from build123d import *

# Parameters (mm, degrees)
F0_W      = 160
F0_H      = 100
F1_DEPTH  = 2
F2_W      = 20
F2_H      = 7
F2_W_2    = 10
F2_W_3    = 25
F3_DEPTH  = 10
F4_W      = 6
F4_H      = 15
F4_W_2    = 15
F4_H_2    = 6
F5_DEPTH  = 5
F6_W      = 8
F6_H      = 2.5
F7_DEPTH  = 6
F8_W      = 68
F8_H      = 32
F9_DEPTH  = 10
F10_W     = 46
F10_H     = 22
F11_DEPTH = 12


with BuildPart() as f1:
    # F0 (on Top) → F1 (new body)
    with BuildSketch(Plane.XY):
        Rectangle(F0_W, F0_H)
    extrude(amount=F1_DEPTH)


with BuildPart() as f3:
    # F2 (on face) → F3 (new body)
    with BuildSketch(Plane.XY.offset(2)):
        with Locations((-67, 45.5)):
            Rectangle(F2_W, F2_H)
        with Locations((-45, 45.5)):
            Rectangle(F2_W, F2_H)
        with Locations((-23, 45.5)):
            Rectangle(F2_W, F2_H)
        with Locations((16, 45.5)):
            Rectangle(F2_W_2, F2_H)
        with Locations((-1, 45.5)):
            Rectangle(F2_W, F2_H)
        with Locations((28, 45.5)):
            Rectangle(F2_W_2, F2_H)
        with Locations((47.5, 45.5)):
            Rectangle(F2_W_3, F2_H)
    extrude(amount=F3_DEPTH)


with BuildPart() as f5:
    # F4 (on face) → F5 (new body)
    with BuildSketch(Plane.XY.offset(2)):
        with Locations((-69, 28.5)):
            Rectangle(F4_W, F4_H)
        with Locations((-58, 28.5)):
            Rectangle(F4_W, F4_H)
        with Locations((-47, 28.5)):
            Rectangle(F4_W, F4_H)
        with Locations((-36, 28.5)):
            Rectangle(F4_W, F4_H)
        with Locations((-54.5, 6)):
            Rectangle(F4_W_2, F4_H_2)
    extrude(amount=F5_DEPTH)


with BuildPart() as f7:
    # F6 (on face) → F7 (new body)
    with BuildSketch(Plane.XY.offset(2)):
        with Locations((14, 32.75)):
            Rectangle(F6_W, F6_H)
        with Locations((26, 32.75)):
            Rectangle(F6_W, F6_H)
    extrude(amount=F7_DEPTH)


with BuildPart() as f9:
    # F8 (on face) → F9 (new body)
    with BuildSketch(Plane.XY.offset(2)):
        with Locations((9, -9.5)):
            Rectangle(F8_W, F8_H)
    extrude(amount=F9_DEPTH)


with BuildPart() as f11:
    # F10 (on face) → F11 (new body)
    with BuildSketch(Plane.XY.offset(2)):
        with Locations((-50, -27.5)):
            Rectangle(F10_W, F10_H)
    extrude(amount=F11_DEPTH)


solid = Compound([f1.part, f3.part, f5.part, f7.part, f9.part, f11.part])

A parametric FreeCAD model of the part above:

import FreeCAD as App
import Part
import Sketcher
Q = App.Units.Quantity

doc = App.newDocument("Part")
body = doc.addObject("PartDesign::Body", "Body")

# Sketch on XY plane
sketch1 = body.newObject("Sketcher::SketchObject", "Sketch")
sketch1.AttachmentSupport = (doc.getObject("XY_Plane"), [""])
sketch1.MapMode = "FlatFace"
sketch1.addGeometry(Part.LineSegment(App.Vector(-80, 50, 0), App.Vector(-80, -50, 0)), False)
sketch1.addGeometry(Part.LineSegment(App.Vector(-80, -50, 0), App.Vector(80, -50, 0)), False)
sketch1.addGeometry(Part.LineSegment(App.Vector(80, -50, 0), App.Vector(80, 50, 0)), False)
sketch1.addGeometry(Part.LineSegment(App.Vector(80, 50, 0), App.Vector(-80, 50, 0)), False)
sketch1.addConstraint(Sketcher.Constraint("Coincident", 0, 2, 1, 1))
sketch1.addConstraint(Sketcher.Constraint("Coincident", 1, 2, 2, 1))
sketch1.addConstraint(Sketcher.Constraint("Coincident", 2, 2, 3, 1))
sketch1.addConstraint(Sketcher.Constraint("Coincident", 3, 2, 0, 1))
sketch1.addConstraint(Sketcher.Constraint("Vertical", 0))
sketch1.addConstraint(Sketcher.Constraint("Horizontal", 1))
sketch1.addConstraint(Sketcher.Constraint("Vertical", 2))
sketch1.addConstraint(Sketcher.Constraint("Horizontal", 3))
sketch1.addConstraint(Sketcher.Constraint("Symmetric", 0, 2, 2, 2, -1, 1))
sketch1.addConstraint(Sketcher.Constraint("DistanceX", 1, 1, 1, 2, Q("160 mm")))
sketch1.addConstraint(Sketcher.Constraint("DistanceY", 0, 2, 0, 1, Q("100 mm")))
pad1 = body.newObject("PartDesign::Pad", "Pad")
pad1.Profile = sketch1
pad1.Length = 2
body2 = doc.addObject("PartDesign::Body", "Body001")
body2.AllowCompound = True

# Sketch on XY plane
sketch2 = body2.newObject("Sketcher::SketchObject", "Sketch001")
sketch2.AttachmentSupport = (doc.getObject("XY_Plane001"), [""])
sketch2.MapMode = "FlatFace"
sketch2.AttachmentOffset = App.Placement(App.Vector(0, 0, 2), App.Rotation())
sketch2.addGeometry(Part.LineSegment(App.Vector(-77, 49, 0), App.Vector(-77, 42, 0)), False)
sketch2.addGeometry(Part.LineSegment(App.Vector(-77, 42, 0), App.Vector(-57, 42, 0)), False)
sketch2.addGeometry(Part.LineSegment(App.Vector(-57, 42, 0), App.Vector(-57, 49, 0)), False)
sketch2.addGeometry(Part.LineSegment(App.Vector(-57, 49, 0), App.Vector(-77, 49, 0)), False)
sketch2.addGeometry(Part.LineSegment(App.Vector(-55, 49, 0), App.Vector(-55, 42, 0)), False)
sketch2.addGeometry(Part.LineSegment(App.Vector(-55, 42, 0), App.Vector(-35, 42, 0)), False)
sketch2.addGeometry(Part.LineSegment(App.Vector(-35, 42, 0), App.Vector(-35, 49, 0)), False)
sketch2.addGeometry(Part.LineSegment(App.Vector(-35, 49, 0), App.Vector(-55, 49, 0)), False)
sketch2.addGeometry(Part.LineSegment(App.Vector(-33, 49, 0), App.Vector(-33, 42, 0)), False)
sketch2.addGeometry(Part.LineSegment(App.Vector(-33, 42, 0), App.Vector(-13, 42, 0)), False)
sketch2.addGeometry(Part.LineSegment(App.Vector(-13, 42, 0), App.Vector(-13, 49, 0)), False)
sketch2.addGeometry(Part.LineSegment(App.Vector(-13, 49, 0), App.Vector(-33, 49, 0)), False)
sketch2.addGeometry(Part.LineSegment(App.Vector(11, 49, 0), App.Vector(11, 42, 0)), False)
sketch2.addGeometry(Part.LineSegment(App.Vector(11, 42, 0), App.Vector(21, 42, 0)), False)
sketch2.addGeometry(Part.LineSegment(App.Vector(21, 42, 0), App.Vector(21, 49, 0)), False)
sketch2.addGeometry(Part.LineSegment(App.Vector(21, 49, 0), App.Vector(11, 49, 0)), False)
sketch2.addGeometry(Part.LineSegment(App.Vector(-11, 49, 0), App.Vector(-11, 42, 0)), False)
sketch2.addGeometry(Part.LineSegment(App.Vector(-11, 42, 0), App.Vector(9, 42, 0)), False)
sketch2.addGeometry(Part.LineSegment(App.Vector(9, 42, 0), App.Vector(9, 49, 0)), False)
sketch2.addGeometry(Part.LineSegment(App.Vector(9, 49, 0), App.Vector(-11, 49, 0)), False)
sketch2.addGeometry(Part.LineSegment(App.Vector(23, 49, 0), App.Vector(23, 42, 0)), False)
sketch2.addGeometry(Part.LineSegment(App.Vector(23, 42, 0), App.Vector(33, 42, 0)), False)
sketch2.addGeometry(Part.LineSegment(App.Vector(33, 42, 0), App.Vector(33, 49, 0)), False)
sketch2.addGeometry(Part.LineSegment(App.Vector(33, 49, 0), App.Vector(23, 49, 0)), False)
sketch2.addGeometry(Part.LineSegment(App.Vector(35, 49, 0), App.Vector(35, 42, 0)), False)
sketch2.addGeometry(Part.LineSegment(App.Vector(35, 42, 0), App.Vector(60, 42, 0)), False)
sketch2.addGeometry(Part.LineSegment(App.Vector(60, 42, 0), App.Vector(60, 49, 0)), False)
sketch2.addGeometry(Part.LineSegment(App.Vector(60, 49, 0), App.Vector(35, 49, 0)), False)
sketch2.addConstraint(Sketcher.Constraint("Coincident", 0, 2, 1, 1))
sketch2.addConstraint(Sketcher.Constraint("Coincident", 1, 2, 2, 1))
sketch2.addConstraint(Sketcher.Constraint("Coincident", 2, 2, 3, 1))
sketch2.addConstraint(Sketcher.Constraint("Coincident", 3, 2, 0, 1))
sketch2.addConstraint(Sketcher.Constraint("Coincident", 4, 2, 5, 1))
sketch2.addConstraint(Sketcher.Constraint("Coincident", 5, 2, 6, 1))
sketch2.addConstraint(Sketcher.Constraint("Coincident", 6, 2, 7, 1))
sketch2.addConstraint(Sketcher.Constraint("Coincident", 7, 2, 4, 1))
sketch2.addConstraint(Sketcher.Constraint("Coincident", 8, 2, 9, 1))
sketch2.addConstraint(Sketcher.Constraint("Coincident", 9, 2, 10, 1))
sketch2.addConstraint(Sketcher.Constraint("Coincident", 10, 2, 11, 1))
sketch2.addConstraint(Sketcher.Constraint("Coincident", 11, 2, 8, 1))
sketch2.addConstraint(Sketcher.Constraint("Coincident", 12, 2, 13, 1))
sketch2.addConstraint(Sketcher.Constraint("Coincident", 13, 2, 14, 1))
sketch2.addConstraint(Sketcher.Constraint("Coincident", 14, 2, 15, 1))
sketch2.addConstraint(Sketcher.Constraint("Coincident", 15, 2, 12, 1))
sketch2.addConstraint(Sketcher.Constraint("Coincident", 16, 2, 17, 1))
sketch2.addConstraint(Sketcher.Constraint("Coincident", 17, 2, 18, 1))
sketch2.addConstraint(Sketcher.Constraint("Coincident", 18, 2, 19, 1))
sketch2.addConstraint(Sketcher.Constraint("Coincident", 19, 2, 16, 1))
sketch2.addConstraint(Sketcher.Constraint("Coincident", 20, 2, 21, 1))
sketch2.addConstraint(Sketcher.Constraint("Coincident", 21, 2, 22, 1))
sketch2.addConstraint(Sketcher.Constraint("Coincident", 22, 2, 23, 1))
sketch2.addConstraint(Sketcher.Constraint("Coincident", 23, 2, 20, 1))
sketch2.addConstraint(Sketcher.Constraint("Coincident", 24, 2, 25, 1))
sketch2.addConstraint(Sketcher.Constraint("Coincident", 25, 2, 26, 1))
sketch2.addConstraint(Sketcher.Constraint("Coincident", 26, 2, 27, 1))
sketch2.addConstraint(Sketcher.Constraint("Coincident", 27, 2, 24, 1))
sketch2.addConstraint(Sketcher.Constraint("Vertical", 0))
sketch2.addConstraint(Sketcher.Constraint("Horizontal", 1))
sketch2.addConstraint(Sketcher.Constraint("Vertical", 2))
sketch2.addConstraint(Sketcher.Constraint("Horizontal", 3))
sketch2.addConstraint(Sketcher.Constraint("Vertical", 4))
sketch2.addConstraint(Sketcher.Constraint("Horizontal", 5))
sketch2.addConstraint(Sketcher.Constraint("Vertical", 6))
sketch2.addConstraint(Sketcher.Constraint("Horizontal", 7))
sketch2.addConstraint(Sketcher.Constraint("Vertical", 8))
sketch2.addConstraint(Sketcher.Constraint("Horizontal", 9))
sketch2.addConstraint(Sketcher.Constraint("Vertical", 10))
sketch2.addConstraint(Sketcher.Constraint("Horizontal", 11))
sketch2.addConstraint(Sketcher.Constraint("Vertical", 12))
sketch2.addConstraint(Sketcher.Constraint("Horizontal", 13))
sketch2.addConstraint(Sketcher.Constraint("Vertical", 14))
sketch2.addConstraint(Sketcher.Constraint("Horizontal", 15))
sketch2.addConstraint(Sketcher.Constraint("Vertical", 16))
sketch2.addConstraint(Sketcher.Constraint("Horizontal", 17))
sketch2.addConstraint(Sketcher.Constraint("Vertical", 18))
sketch2.addConstraint(Sketcher.Constraint("Horizontal", 19))
sketch2.addConstraint(Sketcher.Constraint("Vertical", 20))
sketch2.addConstraint(Sketcher.Constraint("Horizontal", 21))
sketch2.addConstraint(Sketcher.Constraint("Vertical", 22))
sketch2.addConstraint(Sketcher.Constraint("Horizontal", 23))
sketch2.addConstraint(Sketcher.Constraint("Vertical", 24))
sketch2.addConstraint(Sketcher.Constraint("Horizontal", 25))
sketch2.addConstraint(Sketcher.Constraint("Vertical", 26))
sketch2.addConstraint(Sketcher.Constraint("Horizontal", 27))
sketch2.addConstraint(Sketcher.Constraint("Symmetric", 12, 2, 16, 2, -2))
sketch2.addConstraint(Sketcher.Constraint("Symmetric", 8, 2, 21, 2, -2))
sketch2.addConstraint(Sketcher.Constraint("Symmetric", 5, 2, 24, 2, -2))
sketch2.addConstraint(Sketcher.Constraint("Horizontal", 1, 2, 4, 2))
sketch2.addConstraint(Sketcher.Constraint("Horizontal", 3, 2, 6, 2))
sketch2.addConstraint(Sketcher.Constraint("Horizontal", 5, 2, 8, 2))
sketch2.addConstraint(Sketcher.Constraint("Horizontal", 7, 2, 10, 2))
sketch2.addConstraint(Sketcher.Constraint("Horizontal", 9, 2, 12, 2))
sketch2.addConstraint(Sketcher.Constraint("Horizontal", 11, 2, 14, 2))
sketch2.addConstraint(Sketcher.Constraint("Horizontal", 15, 2, 18, 2))
sketch2.addConstraint(Sketcher.Constraint("Horizontal", 19, 2, 22, 2))
sketch2.addConstraint(Sketcher.Constraint("Horizontal", 23, 2, 26, 2))
sketch2.addConstraint(Sketcher.Constraint("Equal", 3, 5))
sketch2.addConstraint(Sketcher.Constraint("Equal", 7, 9))
sketch2.addConstraint(Sketcher.Constraint("Equal", 11, 17))
sketch2.addConstraint(Sketcher.Constraint("Equal", 15, 21))
sketch2.addConstraint(Sketcher.Constraint("DistanceX", 1, 1, 1, 2, Q("20 mm")))
sketch2.addConstraint(Sketcher.Constraint("DistanceX", 13, 1, 13, 2, Q("10 mm")))
sketch2.addConstraint(Sketcher.Constraint("DistanceX", 25, 1, 25, 2, Q("25 mm")))
sketch2.addConstraint(Sketcher.Constraint("DistanceY", 0, 2, 0, 1, Q("7 mm")))
sketch2.addConstraint(Sketcher.Constraint("DistanceX", 0, 2, -1, 1, Q("77 mm")))
sketch2.addConstraint(Sketcher.Constraint("DistanceY", -1, 1, 0, 2, Q("42 mm")))
sketch2.addConstraint(Sketcher.Constraint("DistanceX", 4, 2, -1, 1, Q("55 mm")))
sketch2.addConstraint(Sketcher.Constraint("DistanceX", 8, 2, -1, 1, Q("33 mm")))
sketch2.addConstraint(Sketcher.Constraint("DistanceX", -1, 1, 12, 2, Q("11 mm")))
pad2 = body2.newObject("PartDesign::Pad", "Pad001")
pad2.Profile = sketch2
pad2.Length = 10
body3 = doc.addObject("PartDesign::Body", "Body002")
body3.AllowCompound = True

# Sketch on XY plane
sketch3 = body3.newObject("Sketcher::SketchObject", "Sketch002")
sketch3.AttachmentSupport = (doc.getObject("XY_Plane002"), [""])
sketch3.MapMode = "FlatFace"
sketch3.AttachmentOffset = App.Placement(App.Vector(0, 0, 2), App.Rotation())
sketch3.addGeometry(Part.LineSegment(App.Vector(-72, 36, 0), App.Vector(-72, 21, 0)), False)
sketch3.addGeometry(Part.LineSegment(App.Vector(-72, 21, 0), App.Vector(-66, 21, 0)), False)
sketch3.addGeometry(Part.LineSegment(App.Vector(-66, 21, 0), App.Vector(-66, 36, 0)), False)
sketch3.addGeometry(Part.LineSegment(App.Vector(-66, 36, 0), App.Vector(-72, 36, 0)), False)
sketch3.addGeometry(Part.LineSegment(App.Vector(-61, 36, 0), App.Vector(-61, 21, 0)), False)
sketch3.addGeometry(Part.LineSegment(App.Vector(-61, 21, 0), App.Vector(-55, 21, 0)), False)
sketch3.addGeometry(Part.LineSegment(App.Vector(-55, 21, 0), App.Vector(-55, 36, 0)), False)
sketch3.addGeometry(Part.LineSegment(App.Vector(-55, 36, 0), App.Vector(-61, 36, 0)), False)
sketch3.addGeometry(Part.LineSegment(App.Vector(-50, 36, 0), App.Vector(-50, 21, 0)), False)
sketch3.addGeometry(Part.LineSegment(App.Vector(-50, 21, 0), App.Vector(-44, 21, 0)), False)
sketch3.addGeometry(Part.LineSegment(App.Vector(-44, 21, 0), App.Vector(-44, 36, 0)), False)
sketch3.addGeometry(Part.LineSegment(App.Vector(-44, 36, 0), App.Vector(-50, 36, 0)), False)
sketch3.addGeometry(Part.LineSegment(App.Vector(-39, 36, 0), App.Vector(-39, 21, 0)), False)
sketch3.addGeometry(Part.LineSegment(App.Vector(-39, 21, 0), App.Vector(-33, 21, 0)), False)
sketch3.addGeometry(Part.LineSegment(App.Vector(-33, 21, 0), App.Vector(-33, 36, 0)), False)
sketch3.addGeometry(Part.LineSegment(App.Vector(-33, 36, 0), App.Vector(-39, 36, 0)), False)
sketch3.addGeometry(Part.LineSegment(App.Vector(-62, 9, 0), App.Vector(-62, 3, 0)), False)
sketch3.addGeometry(Part.LineSegment(App.Vector(-62, 3, 0), App.Vector(-47, 3, 0)), False)
sketch3.addGeometry(Part.LineSegment(App.Vector(-47, 3, 0), App.Vector(-47, 9, 0)), False)
sketch3.addGeometry(Part.LineSegment(App.Vector(-47, 9, 0), App.Vector(-62, 9, 0)), False)
sketch3.addConstraint(Sketcher.Constraint("Coincident", 0, 2, 1, 1))
sketch3.addConstraint(Sketcher.Constraint("Coincident", 1, 2, 2, 1))
sketch3.addConstraint(Sketcher.Constraint("Coincident", 2, 2, 3, 1))
sketch3.addConstraint(Sketcher.Constraint("Coincident", 3, 2, 0, 1))
sketch3.addConstraint(Sketcher.Constraint("Coincident", 4, 2, 5, 1))
sketch3.addConstraint(Sketcher.Constraint("Coincident", 5, 2, 6, 1))
sketch3.addConstraint(Sketcher.Constraint("Coincident", 6, 2, 7, 1))
sketch3.addConstraint(Sketcher.Constraint("Coincident", 7, 2, 4, 1))
sketch3.addConstraint(Sketcher.Constraint("Coincident", 8, 2, 9, 1))
sketch3.addConstraint(Sketcher.Constraint("Coincident", 9, 2, 10, 1))
sketch3.addConstraint(Sketcher.Constraint("Coincident", 10, 2, 11, 1))
sketch3.addConstraint(Sketcher.Constraint("Coincident", 11, 2, 8, 1))
sketch3.addConstraint(Sketcher.Constraint("Coincident", 12, 2, 13, 1))
sketch3.addConstraint(Sketcher.Constraint("Coincident", 13, 2, 14, 1))
sketch3.addConstraint(Sketcher.Constraint("Coincident", 14, 2, 15, 1))
sketch3.addConstraint(Sketcher.Constraint("Coincident", 15, 2, 12, 1))
sketch3.addConstraint(Sketcher.Constraint("Coincident", 16, 2, 17, 1))
sketch3.addConstraint(Sketcher.Constraint("Coincident", 17, 2, 18, 1))
sketch3.addConstraint(Sketcher.Constraint("Coincident", 18, 2, 19, 1))
sketch3.addConstraint(Sketcher.Constraint("Coincident", 19, 2, 16, 1))
sketch3.addConstraint(Sketcher.Constraint("Vertical", 0))
sketch3.addConstraint(Sketcher.Constraint("Horizontal", 1))
sketch3.addConstraint(Sketcher.Constraint("Vertical", 2))
sketch3.addConstraint(Sketcher.Constraint("Horizontal", 3))
sketch3.addConstraint(Sketcher.Constraint("Vertical", 4))
sketch3.addConstraint(Sketcher.Constraint("Horizontal", 5))
sketch3.addConstraint(Sketcher.Constraint("Vertical", 6))
sketch3.addConstraint(Sketcher.Constraint("Horizontal", 7))
sketch3.addConstraint(Sketcher.Constraint("Vertical", 8))
sketch3.addConstraint(Sketcher.Constraint("Horizontal", 9))
sketch3.addConstraint(Sketcher.Constraint("Vertical", 10))
sketch3.addConstraint(Sketcher.Constraint("Horizontal", 11))
sketch3.addConstraint(Sketcher.Constraint("Vertical", 12))
sketch3.addConstraint(Sketcher.Constraint("Horizontal", 13))
sketch3.addConstraint(Sketcher.Constraint("Vertical", 14))
sketch3.addConstraint(Sketcher.Constraint("Horizontal", 15))
sketch3.addConstraint(Sketcher.Constraint("Vertical", 16))
sketch3.addConstraint(Sketcher.Constraint("Horizontal", 17))
sketch3.addConstraint(Sketcher.Constraint("Vertical", 18))
sketch3.addConstraint(Sketcher.Constraint("Horizontal", 19))
sketch3.addConstraint(Sketcher.Constraint("Horizontal", 1, 2, 4, 2))
sketch3.addConstraint(Sketcher.Constraint("Horizontal", 3, 2, 6, 2))
sketch3.addConstraint(Sketcher.Constraint("Horizontal", 5, 2, 8, 2))
sketch3.addConstraint(Sketcher.Constraint("Horizontal", 7, 2, 10, 2))
sketch3.addConstraint(Sketcher.Constraint("Horizontal", 9, 2, 12, 2))
sketch3.addConstraint(Sketcher.Constraint("Horizontal", 11, 2, 14, 2))
sketch3.addConstraint(Sketcher.Constraint("Equal", 3, 5))
sketch3.addConstraint(Sketcher.Constraint("Equal", 7, 9))
sketch3.addConstraint(Sketcher.Constraint("Equal", 11, 13))
sketch3.addConstraint(Sketcher.Constraint("Equal", 19, 0))
sketch3.addConstraint(Sketcher.Constraint("Equal", 15, 16))
sketch3.addConstraint(Sketcher.Constraint("DistanceX", 1, 1, 1, 2, Q("6 mm")))
sketch3.addConstraint(Sketcher.Constraint("DistanceX", 17, 1, 17, 2, Q("15 mm")))
sketch3.addConstraint(Sketcher.Constraint("DistanceX", 0, 2, -1, 1, Q("72 mm")))
sketch3.addConstraint(Sketcher.Constraint("DistanceY", -1, 1, 0, 2, Q("21 mm")))
sketch3.addConstraint(Sketcher.Constraint("DistanceX", 4, 2, -1, 1, Q("61 mm")))
sketch3.addConstraint(Sketcher.Constraint("DistanceX", 8, 2, -1, 1, Q("50 mm")))
sketch3.addConstraint(Sketcher.Constraint("DistanceX", 12, 2, -1, 1, Q("39 mm")))
sketch3.addConstraint(Sketcher.Constraint("DistanceX", 16, 2, -1, 1, Q("62 mm")))
sketch3.addConstraint(Sketcher.Constraint("DistanceY", -1, 1, 16, 2, Q("3 mm")))
pad3 = body3.newObject("PartDesign::Pad", "Pad002")
pad3.Profile = sketch3
pad3.Length = 5
body4 = doc.addObject("PartDesign::Body", "Body003")
body4.AllowCompound = True

# Sketch on XY plane
sketch4 = body4.newObject("Sketcher::SketchObject", "Sketch003")
sketch4.AttachmentSupport = (doc.getObject("XY_Plane003"), [""])
sketch4.MapMode = "FlatFace"
sketch4.AttachmentOffset = App.Placement(App.Vector(0, 0, 2), App.Rotation())
sketch4.addGeometry(Part.LineSegment(App.Vector(10, 34, 0), App.Vector(10, 31.5, 0)), False)
sketch4.addGeometry(Part.LineSegment(App.Vector(10, 31.5, 0), App.Vector(18, 31.5, 0)), False)
sketch4.addGeometry(Part.LineSegment(App.Vector(18, 31.5, 0), App.Vector(18, 34, 0)), False)
sketch4.addGeometry(Part.LineSegment(App.Vector(18, 34, 0), App.Vector(10, 34, 0)), False)
sketch4.addGeometry(Part.LineSegment(App.Vector(22, 34, 0), App.Vector(22, 31.5, 0)), False)
sketch4.addGeometry(Part.LineSegment(App.Vector(22, 31.5, 0), App.Vector(30, 31.5, 0)), False)
sketch4.addGeometry(Part.LineSegment(App.Vector(30, 31.5, 0), App.Vector(30, 34, 0)), False)
sketch4.addGeometry(Part.LineSegment(App.Vector(30, 34, 0), App.Vector(22, 34, 0)), False)
sketch4.addConstraint(Sketcher.Constraint("Coincident", 0, 2, 1, 1))
sketch4.addConstraint(Sketcher.Constraint("Coincident", 1, 2, 2, 1))
sketch4.addConstraint(Sketcher.Constraint("Coincident", 2, 2, 3, 1))
sketch4.addConstraint(Sketcher.Constraint("Coincident", 3, 2, 0, 1))
sketch4.addConstraint(Sketcher.Constraint("Coincident", 4, 2, 5, 1))
sketch4.addConstraint(Sketcher.Constraint("Coincident", 5, 2, 6, 1))
sketch4.addConstraint(Sketcher.Constraint("Coincident", 6, 2, 7, 1))
sketch4.addConstraint(Sketcher.Constraint("Coincident", 7, 2, 4, 1))
sketch4.addConstraint(Sketcher.Constraint("Vertical", 0))
sketch4.addConstraint(Sketcher.Constraint("Horizontal", 1))
sketch4.addConstraint(Sketcher.Constraint("Vertical", 2))
sketch4.addConstraint(Sketcher.Constraint("Horizontal", 3))
sketch4.addConstraint(Sketcher.Constraint("Vertical", 4))
sketch4.addConstraint(Sketcher.Constraint("Horizontal", 5))
sketch4.addConstraint(Sketcher.Constraint("Vertical", 6))
sketch4.addConstraint(Sketcher.Constraint("Horizontal", 7))
sketch4.addConstraint(Sketcher.Constraint("Horizontal", 1, 2, 4, 2))
sketch4.addConstraint(Sketcher.Constraint("Horizontal", 3, 2, 6, 2))
sketch4.addConstraint(Sketcher.Constraint("Equal", 3, 5))
sketch4.addConstraint(Sketcher.Constraint("DistanceX", 1, 1, 1, 2, Q("8 mm")))
sketch4.addConstraint(Sketcher.Constraint("DistanceY", 0, 2, 0, 1, Q("2.5 mm")))
sketch4.addConstraint(Sketcher.Constraint("DistanceX", -1, 1, 0, 2, Q("10 mm")))
sketch4.addConstraint(Sketcher.Constraint("DistanceY", -1, 1, 2, 2, Q("34 mm")))
sketch4.addConstraint(Sketcher.Constraint("DistanceX", -1, 1, 4, 2, Q("22 mm")))
pad4 = body4.newObject("PartDesign::Pad", "Pad003")
pad4.Profile = sketch4
pad4.Length = 6
body5 = doc.addObject("PartDesign::Body", "Body004")

# Sketch on XY plane
sketch5 = body5.newObject("Sketcher::SketchObject", "Sketch004")
sketch5.AttachmentSupport = (doc.getObject("XY_Plane004"), [""])
sketch5.MapMode = "FlatFace"
sketch5.AttachmentOffset = App.Placement(App.Vector(0, 0, 2), App.Rotation())
sketch5.addGeometry(Part.LineSegment(App.Vector(-25, 6, 0), App.Vector(-25, -26, 0)), False)
sketch5.addGeometry(Part.LineSegment(App.Vector(-25, -26, 0), App.Vector(43, -26, 0)), False)
sketch5.addGeometry(Part.LineSegment(App.Vector(43, -26, 0), App.Vector(43, 6, 0)), False)
sketch5.addGeometry(Part.LineSegment(App.Vector(43, 6, 0), App.Vector(-25, 6, 0)), False)
sketch5.addConstraint(Sketcher.Constraint("Coincident", 0, 2, 1, 1))
sketch5.addConstraint(Sketcher.Constraint("Coincident", 1, 2, 2, 1))
sketch5.addConstraint(Sketcher.Constraint("Coincident", 2, 2, 3, 1))
sketch5.addConstraint(Sketcher.Constraint("Coincident", 3, 2, 0, 1))
sketch5.addConstraint(Sketcher.Constraint("Vertical", 0))
sketch5.addConstraint(Sketcher.Constraint("Horizontal", 1))
sketch5.addConstraint(Sketcher.Constraint("Vertical", 2))
sketch5.addConstraint(Sketcher.Constraint("Horizontal", 3))
sketch5.addConstraint(Sketcher.Constraint("DistanceX", 1, 1, 1, 2, Q("68 mm")))
sketch5.addConstraint(Sketcher.Constraint("DistanceY", 0, 2, 0, 1, Q("32 mm")))
sketch5.addConstraint(Sketcher.Constraint("DistanceX", 0, 2, -1, 1, Q("25 mm")))
sketch5.addConstraint(Sketcher.Constraint("DistanceY", 0, 2, -1, 1, Q("25.5 mm")))
pad5 = body5.newObject("PartDesign::Pad", "Pad004")
pad5.Profile = sketch5
pad5.Length = 10
body6 = doc.addObject("PartDesign::Body", "Body005")

# Sketch on XY plane
sketch6 = body6.newObject("Sketcher::SketchObject", "Sketch005")
sketch6.AttachmentSupport = (doc.getObject("XY_Plane005"), [""])
sketch6.MapMode = "FlatFace"
sketch6.AttachmentOffset = App.Placement(App.Vector(0, 0, 2), App.Rotation())
sketch6.addGeometry(Part.LineSegment(App.Vector(-73, -16, 0), App.Vector(-73, -38, 0)), False)
sketch6.addGeometry(Part.LineSegment(App.Vector(-73, -38, 0), App.Vector(-27, -38, 0)), False)
sketch6.addGeometry(Part.LineSegment(App.Vector(-27, -38, 0), App.Vector(-27, -16, 0)), False)
sketch6.addGeometry(Part.LineSegment(App.Vector(-27, -16, 0), App.Vector(-73, -16, 0)), False)
sketch6.addConstraint(Sketcher.Constraint("Coincident", 0, 2, 1, 1))
sketch6.addConstraint(Sketcher.Constraint("Coincident", 1, 2, 2, 1))
sketch6.addConstraint(Sketcher.Constraint("Coincident", 2, 2, 3, 1))
sketch6.addConstraint(Sketcher.Constraint("Coincident", 3, 2, 0, 1))
sketch6.addConstraint(Sketcher.Constraint("Vertical", 0))
sketch6.addConstraint(Sketcher.Constraint("Horizontal", 1))
sketch6.addConstraint(Sketcher.Constraint("Vertical", 2))
sketch6.addConstraint(Sketcher.Constraint("Horizontal", 3))
sketch6.addConstraint(Sketcher.Constraint("DistanceX", 1, 1, 1, 2, Q("46 mm")))
sketch6.addConstraint(Sketcher.Constraint("DistanceY", 0, 2, 0, 1, Q("22 mm")))
sketch6.addConstraint(Sketcher.Constraint("DistanceX", 0, 2, -1, 1, Q("73 mm")))
sketch6.addConstraint(Sketcher.Constraint("DistanceY", 0, 2, -1, 1, Q("38.5 mm")))
pad6 = body6.newObject("PartDesign::Pad", "Pad005")
pad6.Profile = sketch6
pad6.Length = 12

doc.recompute()
